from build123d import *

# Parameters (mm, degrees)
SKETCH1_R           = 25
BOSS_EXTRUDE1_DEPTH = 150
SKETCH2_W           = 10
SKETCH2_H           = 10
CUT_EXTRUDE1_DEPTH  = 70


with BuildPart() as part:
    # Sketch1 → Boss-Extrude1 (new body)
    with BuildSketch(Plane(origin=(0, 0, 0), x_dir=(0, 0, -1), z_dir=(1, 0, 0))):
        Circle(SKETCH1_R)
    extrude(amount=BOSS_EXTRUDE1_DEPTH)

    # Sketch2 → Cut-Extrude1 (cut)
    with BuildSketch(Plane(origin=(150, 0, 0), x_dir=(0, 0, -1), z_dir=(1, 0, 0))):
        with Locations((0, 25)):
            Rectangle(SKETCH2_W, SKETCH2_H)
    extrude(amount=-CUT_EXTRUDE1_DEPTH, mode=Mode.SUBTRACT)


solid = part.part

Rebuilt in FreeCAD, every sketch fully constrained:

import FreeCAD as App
import Part
import Sketcher
from FreeCAD import Vector
Q = App.Units.Quantity

doc = App.newDocument("Part")
body = doc.addObject("PartDesign::Body", "Body")

# Sketch on YZ plane
sketch1 = body.newObject("Sketcher::SketchObject", "Sketch")
sketch1.AttachmentSupport = (doc.getObject("YZ_Plane"), [""])
sketch1.MapMode = "FlatFace"
sketch1.addGeometry(Part.Circle(Vector(0, 0, 0), Vector(0, 0, 1), 25), False)
sketch1.addConstraint([
    Sketcher.Constraint("Coincident", 0, 3, -1, 1),
    Sketcher.Constraint("Diameter", 0, Q("50 mm")),
])
pad1 = body.newObject("PartDesign::Pad", "Pad")
pad1.Profile = sketch1
pad1.Length = 150

# Sketch on YZ plane
sketch2 = body.newObject("Sketcher::SketchObject", "Sketch001")
sketch2.AttachmentSupport = (doc.getObject("YZ_Plane"), [""])
sketch2.MapMode = "FlatFace"
sketch2.AttachmentOffset = App.Placement(Vector(0, 0, 150), App.Rotation())
sketch2.addGeometry([
    Part.LineSegment(Vector(30, 5, 0), Vector(20, 5, 0)),
    Part.LineSegment(Vector(20, 5, 0), Vector(20, -5, 0)),
    Part.LineSegment(Vector(20, -5, 0), Vector(30, -5, 0)),
    Part.LineSegment(Vector(30, -5, 0), Vector(30, 5, 0)),
], False)
sketch2.addConstraint([
    Sketcher.Constraint("Coincident", 0, 2, 1, 1),
    Sketcher.Constraint("Coincident", 1, 2, 2, 1),
    Sketcher.Constraint("Coincident", 2, 2, 3, 1),
    Sketcher.Constraint("Coincident", 3, 2, 0, 1),
    Sketcher.Constraint("Horizontal", 0),
    Sketcher.Constraint("Vertical", 1),
    Sketcher.Constraint("Horizontal", 2),
    Sketcher.Constraint("Vertical", 3),
    Sketcher.Constraint("Equal", 2, 1),
    Sketcher.Constraint("DistanceX", 0, 2, 0, 1, Q("10 mm")),
    Sketcher.Constraint("DistanceX", -1, 1, 0, 2, Q("20 mm")),
    Sketcher.Constraint("DistanceY", -1, 1, 0, 2, Q("5 mm")),
])
pocket1 = body.newObject("PartDesign::Pocket", "Pocket")
pocket1.Profile = sketch2
pocket1.Length = 70

doc.recompute()
